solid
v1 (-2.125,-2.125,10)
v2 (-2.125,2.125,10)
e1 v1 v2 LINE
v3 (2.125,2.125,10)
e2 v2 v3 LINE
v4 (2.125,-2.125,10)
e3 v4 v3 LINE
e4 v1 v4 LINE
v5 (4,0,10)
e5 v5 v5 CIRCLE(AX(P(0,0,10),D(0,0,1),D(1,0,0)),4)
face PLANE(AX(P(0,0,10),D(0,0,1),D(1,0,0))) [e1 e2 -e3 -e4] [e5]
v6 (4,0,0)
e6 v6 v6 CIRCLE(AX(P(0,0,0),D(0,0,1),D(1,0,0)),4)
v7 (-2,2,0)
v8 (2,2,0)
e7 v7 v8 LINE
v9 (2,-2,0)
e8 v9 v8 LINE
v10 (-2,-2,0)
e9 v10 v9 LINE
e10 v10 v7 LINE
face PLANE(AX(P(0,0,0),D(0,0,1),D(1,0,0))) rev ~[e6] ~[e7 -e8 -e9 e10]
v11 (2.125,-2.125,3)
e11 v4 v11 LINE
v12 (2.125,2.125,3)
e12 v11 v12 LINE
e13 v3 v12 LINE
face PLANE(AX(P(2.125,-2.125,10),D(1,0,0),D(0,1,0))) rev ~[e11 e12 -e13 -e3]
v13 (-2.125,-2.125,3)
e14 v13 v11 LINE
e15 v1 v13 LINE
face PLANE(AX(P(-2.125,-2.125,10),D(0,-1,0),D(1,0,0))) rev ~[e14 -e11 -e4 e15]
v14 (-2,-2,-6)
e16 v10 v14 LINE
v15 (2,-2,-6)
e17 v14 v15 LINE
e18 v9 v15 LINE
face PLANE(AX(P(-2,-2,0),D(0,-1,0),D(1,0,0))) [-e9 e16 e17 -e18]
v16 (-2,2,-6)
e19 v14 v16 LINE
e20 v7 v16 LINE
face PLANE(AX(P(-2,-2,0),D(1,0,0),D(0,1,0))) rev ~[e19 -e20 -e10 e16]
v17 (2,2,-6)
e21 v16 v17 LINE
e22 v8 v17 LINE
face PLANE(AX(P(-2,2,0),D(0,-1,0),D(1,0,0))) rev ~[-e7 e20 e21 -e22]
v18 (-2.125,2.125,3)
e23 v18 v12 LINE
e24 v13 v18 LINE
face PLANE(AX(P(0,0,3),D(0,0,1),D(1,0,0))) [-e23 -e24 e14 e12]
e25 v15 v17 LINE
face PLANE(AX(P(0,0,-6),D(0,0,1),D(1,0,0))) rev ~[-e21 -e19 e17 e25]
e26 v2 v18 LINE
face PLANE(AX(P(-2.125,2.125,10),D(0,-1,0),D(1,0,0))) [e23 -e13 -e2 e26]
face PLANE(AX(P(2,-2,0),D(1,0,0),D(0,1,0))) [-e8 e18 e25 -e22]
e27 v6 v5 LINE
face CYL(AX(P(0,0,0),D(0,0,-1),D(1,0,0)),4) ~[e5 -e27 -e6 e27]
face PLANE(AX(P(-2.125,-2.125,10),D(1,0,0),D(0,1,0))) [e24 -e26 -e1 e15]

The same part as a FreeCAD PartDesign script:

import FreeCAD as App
import Part
import Sketcher
Q = App.Units.Quantity

doc = App.newDocument("Part")
body = doc.addObject("PartDesign::Body", "Body")

# Sketch on XY plane
sketch1 = body.newObject("Sketcher::SketchObject", "Sketch")
sketch1.AttachmentSupport = (doc.getObject("XY_Plane"), [""])
sketch1.MapMode = "FlatFace"
sketch1.addGeometry(Part.Circle(App.Vector(0, 0, 0), App.Vector(0, 0, 1), 4), False)
sketch1.addConstraint(Sketcher.Constraint("Coincident", 0, 3, -1, 1))
sketch1.addConstraint(Sketcher.Constraint("Diameter", 0, Q("8 mm")))
pad1 = body.newObject("PartDesign::Pad", "Pad")
pad1.Profile = sketch1
pad1.Length = 10

# Sketch on XY plane
sketch2 = body.newObject("Sketcher::SketchObject", "Sketch001")
sketch2.AttachmentSupport = (doc.getObject("XY_Plane"), [""])
sketch2.MapMode = "FlatFace"
sketch2.AttachmentOffset = App.Placement(App.Vector(0, 0, 10), App.Rotation())
sketch2.addGeometry(Part.LineSegment(App.Vector(-2.1, 2.1, 0), App.Vector(-2.1, -2.1, 0)), False)
sketch2.addGeometry(Part.LineSegment(App.Vector(-2.1, -2.1, 0), App.Vector(2.1, -2.1, 0)), False)
sketch2.addGeometry(Part.LineSegment(App.Vector(2.1, -2.1, 0), App.Vector(2.1, 2.1, 0)), False)
sketch2.addGeometry(Part.LineSegment(App.Vector(2.1, 2.1, 0), App.Vector(-2.1, 2.1, 0)), False)
sketch2.addConstraint(Sketcher.Constraint("Coincident", 0, 2, 1, 1))
sketch2.addConstraint(Sketcher.Constraint("Coincident", 1, 2, 2, 1))
sketch2.addConstraint(Sketcher.Constraint("Coincident", 2, 2, 3, 1))
sketch2.addConstraint(Sketcher.Constraint("Coincident", 3, 2, 0, 1))
sketch2.addConstraint(Sketcher.Constraint("Vertical", 0))
sketch2.addConstraint(Sketcher.Constraint("Horizontal", 1))
sketch2.addConstraint(Sketcher.Constraint("Vertical", 2))
sketch2.addConstraint(Sketcher.Constraint("Horizontal", 3))
sketch2.addConstraint(Sketcher.Constraint("Symmetric", 0, 2, 2, 2, -1, 1))
sketch2.addConstraint(Sketcher.Constraint("Equal", 3, 0))
sketch2.addConstraint(Sketcher.Constraint("DistanceX", 1, 1, 1, 2, Q("4.25 mm")))
pocket1 = body.newObject("PartDesign::Pocket", "Pocket")
pocket1.Profile = sketch2
pocket1.Length = 7

# Sketch on XY plane
sketch3 = body.newObject("Sketcher::SketchObject", "Sketch002")
sketch3.AttachmentSupport = (doc.getObject("XY_Plane"), [""])
sketch3.MapMode = "FlatFace"
sketch3.addGeometry(Part.LineSegment(App.Vector(-2, 2, 0), App.Vector(-2, -2, 0)), False)
sketch3.addGeometry(Part.LineSegment(App.Vector(-2, -2, 0), App.Vector(2, -2, 0)), False)
sketch3.addGeometry(Part.LineSegment(App.Vector(2, -2, 0), App.Vector(2, 2, 0)), False)
sketch3.addGeometry(Part.LineSegment(App.Vector(2, 2, 0), App.Vector(-2, 2, 0)), False)
sketch3.addConstraint(Sketcher.Constraint("Coincident", 0, 2, 1, 1))
sketch3.addConstraint(Sketcher.Constraint("Coincident", 1, 2, 2, 1))
sketch3.addConstraint(Sketcher.Constraint("Coincident", 2, 2, 3, 1))
sketch3.addConstraint(Sketcher.Constraint("Coincident", 3, 2, 0, 1))
sketch3.addConstraint(Sketcher.Constraint("Vertical", 0))
sketch3.addConstraint(Sketcher.Constraint("Horizontal", 1))
sketch3.addConstraint(Sketcher.Constraint("Vertical", 2))
sketch3.addConstraint(Sketcher.Constraint("Horizontal", 3))
sketch3.addConstraint(Sketcher.Constraint("Symmetric", 0, 2, 2, 2, -1, 1))
sketch3.addConstraint(Sketcher.Constraint("Equal", 3, 0))
sketch3.addConstraint(Sketcher.Constraint("DistanceX", 1, 1, 1, 2, Q("4 mm")))
pad2 = body.newObject("PartDesign::Pad", "Pad001")
pad2.Profile = sketch3
pad2.Length = 6
pad2.Reversed = True

doc.recompute()
